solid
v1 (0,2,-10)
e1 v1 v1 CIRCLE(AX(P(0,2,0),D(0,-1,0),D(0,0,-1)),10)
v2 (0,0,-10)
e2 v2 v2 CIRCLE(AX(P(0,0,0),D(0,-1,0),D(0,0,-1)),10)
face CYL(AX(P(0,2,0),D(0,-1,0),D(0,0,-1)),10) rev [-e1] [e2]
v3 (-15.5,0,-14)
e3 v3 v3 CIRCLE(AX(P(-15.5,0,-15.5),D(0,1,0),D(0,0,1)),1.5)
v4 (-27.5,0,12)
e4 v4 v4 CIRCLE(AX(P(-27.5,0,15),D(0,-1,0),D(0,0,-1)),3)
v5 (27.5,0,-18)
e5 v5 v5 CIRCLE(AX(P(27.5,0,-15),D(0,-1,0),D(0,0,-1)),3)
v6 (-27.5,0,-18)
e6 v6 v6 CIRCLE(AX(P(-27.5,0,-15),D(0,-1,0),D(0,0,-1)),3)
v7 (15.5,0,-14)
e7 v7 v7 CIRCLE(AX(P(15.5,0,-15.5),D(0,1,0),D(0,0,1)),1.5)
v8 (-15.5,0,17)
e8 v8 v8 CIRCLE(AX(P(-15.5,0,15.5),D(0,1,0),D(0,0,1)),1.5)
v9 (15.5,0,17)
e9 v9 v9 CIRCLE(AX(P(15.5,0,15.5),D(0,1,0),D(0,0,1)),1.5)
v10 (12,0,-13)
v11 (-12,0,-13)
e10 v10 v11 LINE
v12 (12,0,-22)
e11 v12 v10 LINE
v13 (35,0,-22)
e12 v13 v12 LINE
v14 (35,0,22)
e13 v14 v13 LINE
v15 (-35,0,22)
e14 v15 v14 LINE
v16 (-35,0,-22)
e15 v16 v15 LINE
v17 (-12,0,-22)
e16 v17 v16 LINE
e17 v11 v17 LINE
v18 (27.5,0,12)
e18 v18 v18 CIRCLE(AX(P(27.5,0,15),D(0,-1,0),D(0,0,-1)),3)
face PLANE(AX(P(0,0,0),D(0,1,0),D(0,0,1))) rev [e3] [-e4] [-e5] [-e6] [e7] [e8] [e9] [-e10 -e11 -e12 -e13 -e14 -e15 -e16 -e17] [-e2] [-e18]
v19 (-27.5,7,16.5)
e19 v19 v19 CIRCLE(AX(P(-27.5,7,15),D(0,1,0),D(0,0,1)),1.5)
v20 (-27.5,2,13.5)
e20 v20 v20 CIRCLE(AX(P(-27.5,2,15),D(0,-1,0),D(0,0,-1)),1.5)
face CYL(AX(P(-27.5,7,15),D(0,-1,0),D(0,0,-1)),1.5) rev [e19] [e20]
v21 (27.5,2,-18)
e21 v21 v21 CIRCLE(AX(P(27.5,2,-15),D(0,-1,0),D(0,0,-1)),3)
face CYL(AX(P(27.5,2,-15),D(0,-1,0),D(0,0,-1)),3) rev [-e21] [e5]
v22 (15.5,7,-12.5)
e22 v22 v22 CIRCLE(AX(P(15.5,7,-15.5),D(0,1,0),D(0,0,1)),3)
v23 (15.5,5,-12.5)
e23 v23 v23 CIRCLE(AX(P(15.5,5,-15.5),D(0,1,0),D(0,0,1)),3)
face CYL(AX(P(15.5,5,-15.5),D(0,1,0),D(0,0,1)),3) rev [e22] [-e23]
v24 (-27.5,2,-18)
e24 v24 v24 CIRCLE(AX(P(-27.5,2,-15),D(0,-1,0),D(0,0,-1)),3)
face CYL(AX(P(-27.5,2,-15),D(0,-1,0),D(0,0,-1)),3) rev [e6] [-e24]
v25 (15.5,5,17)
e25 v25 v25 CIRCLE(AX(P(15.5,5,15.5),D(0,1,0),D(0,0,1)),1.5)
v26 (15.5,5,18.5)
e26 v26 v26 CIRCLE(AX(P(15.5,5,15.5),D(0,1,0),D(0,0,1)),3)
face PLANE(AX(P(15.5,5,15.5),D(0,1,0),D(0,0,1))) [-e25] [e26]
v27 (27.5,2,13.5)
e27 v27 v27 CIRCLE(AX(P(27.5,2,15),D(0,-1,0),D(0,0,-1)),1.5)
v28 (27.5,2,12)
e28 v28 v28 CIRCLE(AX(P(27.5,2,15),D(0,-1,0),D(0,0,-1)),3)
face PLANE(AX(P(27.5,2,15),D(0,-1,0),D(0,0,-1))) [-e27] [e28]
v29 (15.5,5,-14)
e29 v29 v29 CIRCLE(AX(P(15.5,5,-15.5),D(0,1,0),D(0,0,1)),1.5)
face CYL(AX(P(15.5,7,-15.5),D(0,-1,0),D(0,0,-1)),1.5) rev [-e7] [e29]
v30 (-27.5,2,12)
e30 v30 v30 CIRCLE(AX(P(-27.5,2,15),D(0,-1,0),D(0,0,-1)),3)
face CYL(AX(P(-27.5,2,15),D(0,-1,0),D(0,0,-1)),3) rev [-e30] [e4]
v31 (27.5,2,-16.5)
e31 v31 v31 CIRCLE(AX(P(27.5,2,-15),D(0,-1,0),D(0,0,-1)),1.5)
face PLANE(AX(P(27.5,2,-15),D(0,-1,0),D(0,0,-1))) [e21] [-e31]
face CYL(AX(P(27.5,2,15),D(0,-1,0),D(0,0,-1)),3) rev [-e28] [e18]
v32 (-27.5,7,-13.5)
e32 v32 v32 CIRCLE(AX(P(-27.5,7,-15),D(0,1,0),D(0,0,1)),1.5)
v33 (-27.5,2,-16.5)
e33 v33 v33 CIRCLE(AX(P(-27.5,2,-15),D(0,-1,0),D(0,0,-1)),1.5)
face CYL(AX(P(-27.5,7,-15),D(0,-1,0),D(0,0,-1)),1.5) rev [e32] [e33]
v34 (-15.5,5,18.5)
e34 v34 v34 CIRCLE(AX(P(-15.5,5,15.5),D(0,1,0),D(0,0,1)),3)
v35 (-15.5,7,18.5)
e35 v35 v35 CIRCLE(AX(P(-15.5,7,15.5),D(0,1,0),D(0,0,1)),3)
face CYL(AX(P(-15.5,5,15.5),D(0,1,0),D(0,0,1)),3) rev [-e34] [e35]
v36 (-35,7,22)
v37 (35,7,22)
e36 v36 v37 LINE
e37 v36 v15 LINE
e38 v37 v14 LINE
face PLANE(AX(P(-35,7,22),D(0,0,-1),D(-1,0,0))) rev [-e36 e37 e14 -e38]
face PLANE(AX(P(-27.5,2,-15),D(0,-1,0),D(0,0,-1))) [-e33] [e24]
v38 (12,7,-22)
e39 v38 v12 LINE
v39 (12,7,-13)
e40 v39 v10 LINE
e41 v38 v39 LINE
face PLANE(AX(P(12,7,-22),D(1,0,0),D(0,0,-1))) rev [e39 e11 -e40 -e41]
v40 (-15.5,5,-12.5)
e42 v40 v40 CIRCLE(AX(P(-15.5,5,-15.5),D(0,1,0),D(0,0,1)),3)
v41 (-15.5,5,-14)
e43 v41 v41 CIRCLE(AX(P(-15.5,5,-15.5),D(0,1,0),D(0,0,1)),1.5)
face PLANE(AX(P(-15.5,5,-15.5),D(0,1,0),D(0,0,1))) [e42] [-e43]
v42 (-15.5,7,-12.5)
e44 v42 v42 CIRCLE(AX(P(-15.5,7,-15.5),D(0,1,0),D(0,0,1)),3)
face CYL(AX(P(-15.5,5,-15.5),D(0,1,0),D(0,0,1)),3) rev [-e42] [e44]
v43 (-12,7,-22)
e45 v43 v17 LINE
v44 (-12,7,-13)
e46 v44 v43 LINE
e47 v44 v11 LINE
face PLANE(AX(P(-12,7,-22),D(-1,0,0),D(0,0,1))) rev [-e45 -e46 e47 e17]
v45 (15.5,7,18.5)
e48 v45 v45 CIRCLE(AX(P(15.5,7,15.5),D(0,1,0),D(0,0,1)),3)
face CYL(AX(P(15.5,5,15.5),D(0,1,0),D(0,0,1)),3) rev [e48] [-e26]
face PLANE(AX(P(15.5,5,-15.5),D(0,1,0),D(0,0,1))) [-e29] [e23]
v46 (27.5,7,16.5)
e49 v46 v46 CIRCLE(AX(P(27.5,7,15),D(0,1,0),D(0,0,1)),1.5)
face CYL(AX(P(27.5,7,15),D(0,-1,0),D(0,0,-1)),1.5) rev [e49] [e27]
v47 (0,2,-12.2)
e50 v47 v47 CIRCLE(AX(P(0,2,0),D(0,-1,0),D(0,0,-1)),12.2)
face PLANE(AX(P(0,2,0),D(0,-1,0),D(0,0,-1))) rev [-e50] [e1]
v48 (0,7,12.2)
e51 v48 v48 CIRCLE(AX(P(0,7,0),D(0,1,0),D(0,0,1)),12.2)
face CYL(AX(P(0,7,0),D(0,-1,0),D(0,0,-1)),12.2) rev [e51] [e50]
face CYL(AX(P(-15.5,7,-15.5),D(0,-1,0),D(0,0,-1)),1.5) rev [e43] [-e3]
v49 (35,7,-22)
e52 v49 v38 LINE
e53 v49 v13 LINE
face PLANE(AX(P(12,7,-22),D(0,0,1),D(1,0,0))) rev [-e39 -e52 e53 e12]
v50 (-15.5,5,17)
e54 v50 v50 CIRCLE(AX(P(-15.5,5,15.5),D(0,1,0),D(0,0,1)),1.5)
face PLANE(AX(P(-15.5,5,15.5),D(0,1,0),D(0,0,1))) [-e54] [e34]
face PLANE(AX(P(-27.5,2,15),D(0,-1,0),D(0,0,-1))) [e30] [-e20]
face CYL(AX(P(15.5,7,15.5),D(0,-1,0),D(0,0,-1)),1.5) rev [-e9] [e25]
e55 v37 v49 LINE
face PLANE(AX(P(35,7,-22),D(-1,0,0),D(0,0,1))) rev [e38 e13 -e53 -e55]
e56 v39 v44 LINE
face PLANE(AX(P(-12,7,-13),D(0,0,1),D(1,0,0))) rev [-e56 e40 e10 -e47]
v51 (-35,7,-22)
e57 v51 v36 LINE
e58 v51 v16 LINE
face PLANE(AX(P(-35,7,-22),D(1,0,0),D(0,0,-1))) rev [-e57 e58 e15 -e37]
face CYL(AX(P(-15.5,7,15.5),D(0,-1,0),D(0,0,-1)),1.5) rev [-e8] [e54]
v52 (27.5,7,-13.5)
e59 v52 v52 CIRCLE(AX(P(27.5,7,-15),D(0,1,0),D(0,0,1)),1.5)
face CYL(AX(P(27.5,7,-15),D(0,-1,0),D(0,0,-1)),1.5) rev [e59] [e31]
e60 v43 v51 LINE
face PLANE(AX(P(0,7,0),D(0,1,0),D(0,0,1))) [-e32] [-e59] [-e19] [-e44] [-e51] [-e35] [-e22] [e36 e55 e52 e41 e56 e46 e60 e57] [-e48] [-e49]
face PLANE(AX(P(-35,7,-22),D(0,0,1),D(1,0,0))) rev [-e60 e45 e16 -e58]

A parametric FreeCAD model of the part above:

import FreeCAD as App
import Part
import Sketcher


def add_polygon(sketch, points):
    """Adds a closed chain of lines whose ends are joined by coincident constraints."""
    first, n = sketch.GeometryCount, len(points)
    for a, b in zip(points, points[1:] + points[:1]):
        sketch.addGeometry(Part.LineSegment(App.Vector(*a, 0), App.Vector(*b, 0)), False)
    for i in range(n):
        sketch.addConstraint(Sketcher.Constraint("Coincident", first + i, 2, first + (i + 1) % n, 1))

doc = App.newDocument("Part")
body = doc.addObject("PartDesign::Body", "Body")

sketch1 = doc.addObject("Sketcher::SketchObject", "Sketch")
body.addObject(sketch1)
sketch1.AttachmentSupport = (doc.XZ_Plane, [""])
sketch1.MapMode = "FlatFace"
add_polygon(sketch1, [(-12, -13), (-12, -22), (-35, -22), (-35, 22), (35, 22), (35, -22), (12, -22), (12, -13)])
sketch1.addGeometry(Part.Circle(App.Vector(27.5, 15, 0), App.Vector(0, 0, 1), 1.5), False)
sketch1.addGeometry(Part.Circle(App.Vector(15.5, 15.5, 0), App.Vector(0, 0, 1), 1.5), False)
sketch1.addGeometry(Part.Circle(App.Vector(-15.5, 15.5, 0), App.Vector(0, 0, 1), 1.5), False)
sketch1.addGeometry(Part.Circle(App.Vector(-27.5, 15, 0), App.Vector(0, 0, 1), 1.5), False)
sketch1.addGeometry(Part.Circle(App.Vector(27.5, -15, 0), App.Vector(0, 0, 1), 1.5), False)
sketch1.addGeometry(Part.Circle(App.Vector(15.5, -15.5, 0), App.Vector(0, 0, 1), 1.5), False)
sketch1.addGeometry(Part.Circle(App.Vector(0, 0, 0), App.Vector(0, 0, 1), 12.2), False)
sketch1.addGeometry(Part.Circle(App.Vector(-15.5, -15.5, 0), App.Vector(0, 0, 1), 1.5), False)
sketch1.addGeometry(Part.Circle(App.Vector(-27.5, -15, 0), App.Vector(0, 0, 1), 1.5), False)
sketch1.addConstraint(Sketcher.Constraint("Vertical", 0))
sketch1.addConstraint(Sketcher.Constraint("Horizontal", 1))
sketch1.addConstraint(Sketcher.Constraint("Vertical", 2))
sketch1.addConstraint(Sketcher.Constraint("Horizontal", 3))
sketch1.addConstraint(Sketcher.Constraint("Vertical", 4))
sketch1.addConstraint(Sketcher.Constraint("Horizontal", 5))
sketch1.addConstraint(Sketcher.Constraint("Vertical", 6))
sketch1.addConstraint(Sketcher.Constraint("Horizontal", 7))
sketch1.addConstraint(Sketcher.Constraint("Coincident", 14, 3, -1, 1))
sketch1.addConstraint(Sketcher.Constraint("Equal", 8, 9))
sketch1.addConstraint(Sketcher.Constraint("Equal", 9, 10))
sketch1.addConstraint(Sketcher.Constraint("Equal", 10, 11))
sketch1.addConstraint(Sketcher.Constraint("Equal", 11, 12))
sketch1.addConstraint(Sketcher.Constraint("Equal", 12, 13))
sketch1.addConstraint(Sketcher.Constraint("Equal", 13, 15))
sketch1.addConstraint(Sketcher.Constraint("Equal", 15, 16))
sketch1.addConstraint(Sketcher.Constraint("Symmetric", 11, 3, 12, 3, -1, 1))
sketch1.addConstraint(Sketcher.Constraint("Symmetric", 10, 3, 13, 3, -1, 1))
sketch1.addConstraint(Sketcher.Constraint("Symmetric", 9, 3, 15, 3, -1, 1))
sketch1.addConstraint(Sketcher.Constraint("Symmetric", 8, 3, 16, 3, -1, 1))
sketch1.addConstraint(Sketcher.Constraint("Symmetric", 1, 2, 3, 2, -1, 1))
sketch1.addConstraint(Sketcher.Constraint("Symmetric", 9, 3, 10, 3, -2))
sketch1.addConstraint(Sketcher.Constraint("Symmetric", 8, 3, 11, 3, -2))
sketch1.addConstraint(Sketcher.Constraint("Symmetric", 0, 2, 5, 2, -2))
sketch1.addConstraint(Sketcher.Constraint("Diameter", 8, 3.0))
sketch1.addConstraint(Sketcher.Constraint("Diameter", 14, 24.4))
sketch1.addConstraint(Sketcher.Constraint("DistanceX", 1, 2, 1, 1, 23.0))
sketch1.addConstraint(Sketcher.Constraint("DistanceX", 3, 1, 3, 2, 70.0))
sketch1.addConstraint(Sketcher.Constraint("DistanceY", 0, 2, 0, 1, 9.0))
sketch1.addConstraint(Sketcher.Constraint("DistanceY", 2, 1, 2, 2, 44.0))
sketch1.addConstraint(Sketcher.Constraint("DistanceY", -1, 1, 8, 3, 15.0))
sketch1.addConstraint(Sketcher.Constraint("DistanceX", 9, 3, 8, 3, 12.0))
sketch1.addConstraint(Sketcher.Constraint("DistanceX", 10, 3, 9, 3, 31.0))
sketch1.addConstraint(Sketcher.Constraint("DistanceY", 13, 3, 9, 3, 31.0))
pad1 = doc.addObject("PartDesign::Pad", "Pad")
body.addObject(pad1)
pad1.Profile = sketch1
pad1.Length = 7
pad1.Reversed = True

sketch2 = doc.addObject("Sketcher::SketchObject", "Sketch001")
body.addObject(sketch2)
sketch2.AttachmentSupport = (doc.XZ_Plane, [""])
sketch2.MapMode = "FlatFace"
sketch2.addGeometry(Part.Circle(App.Vector(0, 0, 0), App.Vector(0, 0, 1), 12), False)
sketch2.addGeometry(Part.Circle(App.Vector(0, 0, 0), App.Vector(0, 0, 1), 10), False)
sketch2.addConstraint(Sketcher.Constraint("Coincident", 0, 3, -1, 1))
sketch2.addConstraint(Sketcher.Constraint("Coincident", 1, 3, -1, 1))
sketch2.addConstraint(Sketcher.Constraint("Diameter", 1, 20.0))
sketch2.addConstraint(Sketcher.Constraint("Diameter", 0, 24.4))
pad2 = doc.addObject("PartDesign::Pad", "Pad001")
body.addObject(pad2)
pad2.Profile = sketch2
pad2.Length = 2
pad2.Reversed = True

sketch3 = doc.addObject("Sketcher::SketchObject", "Sketch002")
body.addObject(sketch3)
sketch3.AttachmentSupport = (doc.XZ_Plane, [""])
sketch3.MapMode = "FlatFace"
sketch3.addGeometry(Part.Circle(App.Vector(-27.5, 15, 0), App.Vector(0, 0, 1), 3), False)
sketch3.addGeometry(Part.Circle(App.Vector(-27.5, -15, 0), App.Vector(0, 0, 1), 3), False)
sketch3.addGeometry(Part.Circle(App.Vector(27.5, 15, 0), App.Vector(0, 0, 1), 3), False)
sketch3.addGeometry(Part.Circle(App.Vector(27.5, -15, 0), App.Vector(0, 0, 1), 3), False)
sketch3.addConstraint(Sketcher.Constraint("Equal", 0, 1))
sketch3.addConstraint(Sketcher.Constraint("Equal", 1, 2))
sketch3.addConstraint(Sketcher.Constraint("Equal", 2, 3))
sketch3.addConstraint(Sketcher.Constraint("Symmetric", 1, 3, 2, 3, -1, 1))
sketch3.addConstraint(Sketcher.Constraint("Symmetric", 0, 3, 3, 3, -1, 1))
sketch3.addConstraint(Sketcher.Constraint("Symmetric", 0, 3, 2, 3, -2))
sketch3.addConstraint(Sketcher.Constraint("Diameter", 0, 6.0))
sketch3.addConstraint(Sketcher.Constraint("DistanceY", -1, 1, 0, 3, 15.0))
sketch3.addConstraint(Sketcher.Constraint("DistanceX", 0, 3, 2, 3, 55.0))
pocket1 = doc.addObject("PartDesign::Pocket", "Pocket")
body.addObject(pocket1)
pocket1.Profile = sketch3
pocket1.Length = 2

sketch4 = doc.addObject("Sketcher::SketchObject", "Sketch003")
body.addObject(sketch4)
sketch4.AttachmentSupport = (doc.XZ_Plane, [""])
sketch4.MapMode = "FlatFace"
sketch4.AttachmentOffset = App.Placement(App.Vector(0, 0, -7), App.Rotation())
sketch4.addGeometry(Part.Circle(App.Vector(15.5, 15.5, 0), App.Vector(0, 0, 1), 3), False)
sketch4.addGeometry(Part.Circle(App.Vector(-15.5, 15.5, 0), App.Vector(0, 0, 1), 3), False)
sketch4.addGeometry(Part.Circle(App.Vector(15.5, -15.5, 0), App.Vector(0, 0, 1), 3), False)
sketch4.addGeometry(Part.Circle(App.Vector(-15.5, -15.5, 0), App.Vector(0, 0, 1), 3), False)
sketch4.addConstraint(Sketcher.Constraint("Equal", 0, 1))
sketch4.addConstraint(Sketcher.Constraint("Equal", 1, 2))
sketch4.addConstraint(Sketcher.Constraint("Equal", 2, 3))
sketch4.addConstraint(Sketcher.Constraint("Symmetric", 1, 3, 2, 3, -1, 1))
sketch4.addConstraint(Sketcher.Constraint("Symmetric", 0, 3, 3, 3, -1, 1))
sketch4.addConstraint(Sketcher.Constraint("Symmetric", 0, 3, 1, 3, -2))
sketch4.addConstraint(Sketcher.Constraint("Diameter", 0, 6.0))
sketch4.addConstraint(Sketcher.Constraint("DistanceX", 1, 3, 0, 3, 31.0))
sketch4.addConstraint(Sketcher.Constraint("DistanceY", 2, 3, 0, 3, 31.0))
pocket2 = doc.addObject("PartDesign::Pocket", "Pocket001")
body.addObject(pocket2)
pocket2.Profile = sketch4
pocket2.Length = 2
pocket2.Reversed = True

doc.recompute()
